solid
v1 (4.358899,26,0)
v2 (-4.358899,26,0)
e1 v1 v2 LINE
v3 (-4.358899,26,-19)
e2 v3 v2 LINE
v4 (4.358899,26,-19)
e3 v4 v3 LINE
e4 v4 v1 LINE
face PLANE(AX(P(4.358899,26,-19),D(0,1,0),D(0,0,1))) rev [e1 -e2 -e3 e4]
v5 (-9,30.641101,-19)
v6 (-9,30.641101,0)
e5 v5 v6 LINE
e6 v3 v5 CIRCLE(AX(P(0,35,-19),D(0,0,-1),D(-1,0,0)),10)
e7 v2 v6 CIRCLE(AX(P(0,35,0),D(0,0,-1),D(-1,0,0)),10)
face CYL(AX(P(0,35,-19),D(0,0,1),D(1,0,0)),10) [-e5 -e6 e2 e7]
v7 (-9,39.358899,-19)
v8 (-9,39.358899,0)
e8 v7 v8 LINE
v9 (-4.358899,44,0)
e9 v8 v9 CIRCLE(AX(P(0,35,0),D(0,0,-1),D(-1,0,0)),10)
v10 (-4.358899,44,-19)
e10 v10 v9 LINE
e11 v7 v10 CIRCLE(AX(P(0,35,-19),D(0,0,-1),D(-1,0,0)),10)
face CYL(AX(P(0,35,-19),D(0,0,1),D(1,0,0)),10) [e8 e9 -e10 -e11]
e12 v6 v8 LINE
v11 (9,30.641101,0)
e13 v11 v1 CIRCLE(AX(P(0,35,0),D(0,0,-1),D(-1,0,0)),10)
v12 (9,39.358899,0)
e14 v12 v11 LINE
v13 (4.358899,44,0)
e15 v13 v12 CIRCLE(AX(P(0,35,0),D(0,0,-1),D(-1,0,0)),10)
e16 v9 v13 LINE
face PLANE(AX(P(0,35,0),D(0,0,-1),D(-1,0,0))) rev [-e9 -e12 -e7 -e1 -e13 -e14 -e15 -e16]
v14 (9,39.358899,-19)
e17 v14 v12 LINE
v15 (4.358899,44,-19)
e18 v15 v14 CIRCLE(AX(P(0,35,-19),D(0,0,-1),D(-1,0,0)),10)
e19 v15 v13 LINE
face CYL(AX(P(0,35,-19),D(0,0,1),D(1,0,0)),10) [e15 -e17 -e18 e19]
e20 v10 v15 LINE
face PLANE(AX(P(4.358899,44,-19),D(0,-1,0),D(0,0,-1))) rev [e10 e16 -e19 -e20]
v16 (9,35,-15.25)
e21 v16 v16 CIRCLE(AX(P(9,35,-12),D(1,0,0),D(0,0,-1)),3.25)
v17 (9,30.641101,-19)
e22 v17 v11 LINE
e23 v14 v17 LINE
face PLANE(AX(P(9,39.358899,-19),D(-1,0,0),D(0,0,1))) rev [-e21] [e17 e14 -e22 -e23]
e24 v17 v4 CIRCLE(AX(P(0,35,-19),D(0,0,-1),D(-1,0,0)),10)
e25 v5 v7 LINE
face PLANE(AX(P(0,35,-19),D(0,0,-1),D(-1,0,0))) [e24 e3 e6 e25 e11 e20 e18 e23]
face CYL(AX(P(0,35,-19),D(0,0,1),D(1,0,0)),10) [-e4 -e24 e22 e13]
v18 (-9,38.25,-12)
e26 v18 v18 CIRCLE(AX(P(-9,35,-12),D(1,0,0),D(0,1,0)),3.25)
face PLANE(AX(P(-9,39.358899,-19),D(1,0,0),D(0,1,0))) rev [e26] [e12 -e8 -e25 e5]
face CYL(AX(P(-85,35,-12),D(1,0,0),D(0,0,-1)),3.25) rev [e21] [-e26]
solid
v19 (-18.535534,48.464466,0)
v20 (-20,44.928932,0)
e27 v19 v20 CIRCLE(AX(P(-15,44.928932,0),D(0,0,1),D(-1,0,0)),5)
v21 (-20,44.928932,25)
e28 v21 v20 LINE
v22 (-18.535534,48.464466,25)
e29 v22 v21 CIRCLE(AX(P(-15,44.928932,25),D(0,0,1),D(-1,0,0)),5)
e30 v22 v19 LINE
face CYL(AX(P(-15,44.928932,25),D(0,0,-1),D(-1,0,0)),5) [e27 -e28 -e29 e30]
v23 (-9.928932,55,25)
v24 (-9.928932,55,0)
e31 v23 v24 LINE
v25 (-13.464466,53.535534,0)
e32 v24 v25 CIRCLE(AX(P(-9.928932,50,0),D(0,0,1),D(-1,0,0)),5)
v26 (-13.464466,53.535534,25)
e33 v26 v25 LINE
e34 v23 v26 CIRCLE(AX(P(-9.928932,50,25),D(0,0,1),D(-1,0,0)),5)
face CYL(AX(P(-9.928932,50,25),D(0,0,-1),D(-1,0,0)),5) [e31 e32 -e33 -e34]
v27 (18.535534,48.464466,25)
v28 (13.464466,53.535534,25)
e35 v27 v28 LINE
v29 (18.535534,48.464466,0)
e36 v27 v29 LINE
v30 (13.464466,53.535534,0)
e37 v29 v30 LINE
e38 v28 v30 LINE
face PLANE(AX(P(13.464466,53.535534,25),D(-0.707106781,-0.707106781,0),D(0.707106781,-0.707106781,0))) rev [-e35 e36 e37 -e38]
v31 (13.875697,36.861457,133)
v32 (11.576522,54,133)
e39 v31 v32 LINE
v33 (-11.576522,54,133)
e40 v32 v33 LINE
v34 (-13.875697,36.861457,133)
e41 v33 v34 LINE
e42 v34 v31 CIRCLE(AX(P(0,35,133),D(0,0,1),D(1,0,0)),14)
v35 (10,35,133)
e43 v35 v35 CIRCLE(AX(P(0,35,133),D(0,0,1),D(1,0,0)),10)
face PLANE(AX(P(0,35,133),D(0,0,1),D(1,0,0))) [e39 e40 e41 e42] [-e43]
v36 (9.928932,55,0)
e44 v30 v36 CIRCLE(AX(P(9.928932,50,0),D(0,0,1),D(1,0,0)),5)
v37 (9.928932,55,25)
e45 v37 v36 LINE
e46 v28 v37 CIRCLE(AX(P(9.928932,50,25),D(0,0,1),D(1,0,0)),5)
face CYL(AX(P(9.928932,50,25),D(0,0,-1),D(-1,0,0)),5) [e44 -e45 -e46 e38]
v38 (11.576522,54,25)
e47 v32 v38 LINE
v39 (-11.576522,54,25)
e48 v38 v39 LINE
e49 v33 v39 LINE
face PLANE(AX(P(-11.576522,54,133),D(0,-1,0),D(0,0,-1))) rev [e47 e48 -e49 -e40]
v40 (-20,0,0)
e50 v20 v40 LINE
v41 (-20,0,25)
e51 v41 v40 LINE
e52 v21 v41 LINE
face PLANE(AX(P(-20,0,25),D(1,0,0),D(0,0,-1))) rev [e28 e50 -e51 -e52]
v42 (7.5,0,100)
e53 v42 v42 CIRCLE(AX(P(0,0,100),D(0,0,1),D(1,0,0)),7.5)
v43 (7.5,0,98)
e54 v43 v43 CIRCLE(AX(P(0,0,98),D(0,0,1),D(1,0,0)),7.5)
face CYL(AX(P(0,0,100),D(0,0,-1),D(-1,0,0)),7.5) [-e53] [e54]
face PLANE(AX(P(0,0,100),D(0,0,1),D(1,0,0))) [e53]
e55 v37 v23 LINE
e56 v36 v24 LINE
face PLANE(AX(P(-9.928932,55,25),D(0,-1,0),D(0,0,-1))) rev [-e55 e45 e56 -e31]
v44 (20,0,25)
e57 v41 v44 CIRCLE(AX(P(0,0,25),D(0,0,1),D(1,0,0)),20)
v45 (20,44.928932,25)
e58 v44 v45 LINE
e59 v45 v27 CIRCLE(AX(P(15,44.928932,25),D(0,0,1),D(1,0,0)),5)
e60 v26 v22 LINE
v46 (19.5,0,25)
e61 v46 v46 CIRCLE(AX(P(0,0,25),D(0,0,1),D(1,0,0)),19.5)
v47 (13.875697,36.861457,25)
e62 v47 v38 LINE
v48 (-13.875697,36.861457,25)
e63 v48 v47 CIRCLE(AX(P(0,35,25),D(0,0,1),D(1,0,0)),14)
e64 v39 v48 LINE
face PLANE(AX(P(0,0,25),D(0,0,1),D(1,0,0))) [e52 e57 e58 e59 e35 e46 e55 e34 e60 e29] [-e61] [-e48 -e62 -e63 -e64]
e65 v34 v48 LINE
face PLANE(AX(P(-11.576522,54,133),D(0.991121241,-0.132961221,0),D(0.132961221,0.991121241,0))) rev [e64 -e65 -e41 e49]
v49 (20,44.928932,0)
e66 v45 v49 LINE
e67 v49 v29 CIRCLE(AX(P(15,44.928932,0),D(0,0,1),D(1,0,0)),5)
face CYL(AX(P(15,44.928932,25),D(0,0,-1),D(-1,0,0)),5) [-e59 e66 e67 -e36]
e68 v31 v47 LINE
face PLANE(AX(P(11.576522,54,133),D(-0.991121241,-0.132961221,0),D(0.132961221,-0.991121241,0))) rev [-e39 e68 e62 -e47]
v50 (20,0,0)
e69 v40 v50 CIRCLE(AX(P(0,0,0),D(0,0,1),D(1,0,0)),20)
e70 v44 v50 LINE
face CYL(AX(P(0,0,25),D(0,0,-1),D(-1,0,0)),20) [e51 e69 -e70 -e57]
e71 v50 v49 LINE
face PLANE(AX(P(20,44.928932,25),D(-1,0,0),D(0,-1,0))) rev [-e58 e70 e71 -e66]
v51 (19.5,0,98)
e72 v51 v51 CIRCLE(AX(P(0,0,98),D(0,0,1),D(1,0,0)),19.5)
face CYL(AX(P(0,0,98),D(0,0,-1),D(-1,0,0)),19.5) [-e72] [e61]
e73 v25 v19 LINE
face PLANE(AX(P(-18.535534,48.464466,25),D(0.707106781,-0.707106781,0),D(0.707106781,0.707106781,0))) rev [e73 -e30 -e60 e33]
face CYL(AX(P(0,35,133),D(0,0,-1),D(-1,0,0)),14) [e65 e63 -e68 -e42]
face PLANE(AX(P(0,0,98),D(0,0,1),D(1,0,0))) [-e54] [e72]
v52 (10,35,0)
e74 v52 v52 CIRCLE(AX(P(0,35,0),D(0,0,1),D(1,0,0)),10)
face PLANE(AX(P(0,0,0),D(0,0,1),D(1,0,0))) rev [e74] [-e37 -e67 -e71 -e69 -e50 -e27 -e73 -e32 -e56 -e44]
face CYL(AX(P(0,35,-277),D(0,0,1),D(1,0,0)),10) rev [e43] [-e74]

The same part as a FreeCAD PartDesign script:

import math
import FreeCAD as App
import Part
import Sketcher

V = App.Vector
Q = App.Units.Quantity

doc = App.newDocument("Part")
body = doc.addObject("PartDesign::Body", "Body")

# Sketch on XY plane
sketch1 = body.newObject("Sketcher::SketchObject", "Sketch")
sketch1.AttachmentSupport = (doc.getObject("XY_Plane"), [""])
sketch1.MapMode = "FlatFace"
sketch1.addGeometry([
    Part.LineSegment(V(-20, 44.9, 0), V(-20, 0, 0)),  # 0
    Part.ArcOfCircle(Part.Circle(V(0, 0, 0), V(0, 0, 1), 20), math.radians(180), math.radians(360)),  # 1
    Part.LineSegment(V(20, 0, 0), V(20, 44.9, 0)),  # 2
    Part.ArcOfCircle(Part.Circle(V(15, 44.9, 0), V(0, 0, 1), 5), math.radians(0), math.radians(45)),  # 3
    Part.LineSegment(V(18.5, 48.5, 0), V(13.5, 53.5, 0)),  # 4
    Part.ArcOfCircle(Part.Circle(V(9.9, 50, 0), V(0, 0, 1), 5), math.radians(45), math.radians(90)),  # 5
    Part.LineSegment(V(9.9, 55, 0), V(-9.9, 55, 0)),  # 6
    Part.ArcOfCircle(Part.Circle(V(-9.9, 50, 0), V(0, 0, 1), 5), math.radians(90), math.radians(135)),  # 7
    Part.LineSegment(V(-13.5, 53.5, 0), V(-18.5, 48.5, 0)),  # 8
    Part.ArcOfCircle(Part.Circle(V(-15, 44.9, 0), V(0, 0, 1), 5), math.radians(135), math.radians(180)),  # 9
], False)
sketch1.addConstraint([
    Sketcher.Constraint("Tangent", 0, 2, 1, 1),
    Sketcher.Constraint("Tangent", 1, 2, 2, 1),
    Sketcher.Constraint("Tangent", 2, 2, 3, 1),
    Sketcher.Constraint("Tangent", 3, 2, 4, 1),
    Sketcher.Constraint("Tangent", 4, 2, 5, 1),
    Sketcher.Constraint("Tangent", 5, 2, 6, 1),
    Sketcher.Constraint("Tangent", 6, 2, 7, 1),
    Sketcher.Constraint("Tangent", 7, 2, 8, 1),
    Sketcher.Constraint("Tangent", 8, 2, 9, 1),
    Sketcher.Constraint("Tangent", 9, 2, 0, 1),
    Sketcher.Constraint("Vertical", 0),
    Sketcher.Constraint("Vertical", 2),
    Sketcher.Constraint("Horizontal", 6),
    Sketcher.Constraint("Coincident", 1, 3, -1, 1),
    Sketcher.Constraint("Equal", 3, 5),
    Sketcher.Constraint("Equal", 5, 7),
    Sketcher.Constraint("Equal", 7, 9),
    Sketcher.Constraint("Symmetric", 4, 2, 7, 2, -2),
    Sketcher.Constraint("Perpendicular", 4, 8),
    Sketcher.Constraint("Radius", 1, Q("20 mm")),
    Sketcher.Constraint("Radius", 3, Q("5 mm")),
    Sketcher.Constraint("DistanceY", -1, 1, 5, 3, Q("50 mm")),
    Sketcher.Constraint("DistanceX", 5, 3, 3, 2, Q("8.606602 mm")),
])
pad1 = body.newObject("PartDesign::Pad", "Pad")
pad1.Profile = sketch1
pad1.Length = 25

# Sketch on XY plane
sketch2 = body.newObject("Sketcher::SketchObject", "Sketch001")
sketch2.AttachmentSupport = (doc.getObject("XY_Plane"), [""])
sketch2.MapMode = "FlatFace"
sketch2.AttachmentOffset = App.Placement(V(0, 0, 25), App.Rotation())
sketch2.addGeometry(Part.Circle(V(0, 0, 0), V(0, 0, 1), 20), False)
sketch2.addConstraint([
    Sketcher.Constraint("Coincident", 0, 3, -1, 1),
    Sketcher.Constraint("Diameter", 0, Q("39 mm")),
])
pad2 = body.newObject("PartDesign::Pad", "Pad001")
pad2.Profile = sketch2
pad2.Length = 73

# Sketch on XY plane
sketch3 = body.newObject("Sketcher::SketchObject", "Sketch002")
sketch3.AttachmentSupport = (doc.getObject("XY_Plane"), [""])
sketch3.MapMode = "FlatFace"
sketch3.AttachmentOffset = App.Placement(V(0, 0, 98), App.Rotation())
sketch3.addGeometry(Part.Circle(V(0, 0, 0), V(0, 0, 1), 8), False)
sketch3.addConstraint([
    Sketcher.Constraint("Coincident", 0, 3, -1, 1),
    Sketcher.Constraint("Diameter", 0, Q("15 mm")),
])
pad3 = body.newObject("PartDesign::Pad", "Pad002")
pad3.Profile = sketch3
pad3.Length = 2

# Sketch on XY plane
sketch4 = body.newObject("Sketcher::SketchObject", "Sketch003")
sketch4.AttachmentSupport = (doc.getObject("XY_Plane"), [""])
sketch4.MapMode = "FlatFace"
sketch4.AttachmentOffset = App.Placement(V(0, 0, 25), App.Rotation())
sketch4.addGeometry([
    Part.LineSegment(V(-12, 54, 0), V(-14, 37, 0)),
    Part.ArcOfCircle(Part.Circle(V(0, 35, 0), V(0, 0, 1), 14), math.radians(172), math.radians(368)),
    Part.LineSegment(V(14, 37, 0), V(12, 54, 0)),
    Part.LineSegment(V(12, 54, 0), V(-12, 54, 0)),
], False)
sketch4.addConstraint([
    Sketcher.Constraint("Tangent", 0, 2, 1, 1),
    Sketcher.Constraint("Tangent", 1, 2, 2, 1),
    Sketcher.Constraint("Coincident", 2, 2, 3, 1),
    Sketcher.Constraint("Coincident", 3, 2, 0, 1),
    Sketcher.Constraint("Horizontal", 3),
    Sketcher.Constraint("Symmetric", 0, 2, 1, 2, -2),
    Sketcher.Constraint("Radius", 1, Q("14 mm")),
    Sketcher.Constraint("DistanceY", -1, 1, 1, 3, Q("35 mm")),
    Sketcher.Constraint("DistanceY", -1, 1, 2, 2, Q("54 mm")),
    Sketcher.Constraint("DistanceX", 3, 2, 3, 1, Q("23.153044 mm")),
])
pad4 = body.newObject("PartDesign::Pad", "Pad003")
pad4.Profile = sketch4
pad4.Length = 108

# Sketch on XY plane
sketch5 = body.newObject("Sketcher::SketchObject", "Sketch004")
sketch5.AttachmentSupport = (doc.getObject("XY_Plane"), [""])
sketch5.MapMode = "FlatFace"
sketch5.AttachmentOffset = App.Placement(V(0, 0, 133), App.Rotation())
sketch5.addGeometry(Part.Circle(V(0, 35, 0), V(0, 0, 1), 10), False)
sketch5.addConstraint([
    Sketcher.Constraint("PointOnObject", 0, 3, -2),
    Sketcher.Constraint("Diameter", 0, Q("20 mm")),
    Sketcher.Constraint("DistanceY", -1, 1, 0, 3, Q("35 mm")),
])
pocket1 = body.newObject("PartDesign::Pocket", "Pocket")
pocket1.Profile = sketch5
pocket1.Length = 410
body2 = doc.addObject("PartDesign::Body", "Body001")

# Sketch on XY plane
sketch6 = body2.newObject("Sketcher::SketchObject", "Sketch005")
sketch6.AttachmentSupport = (doc.getObject("XY_Plane001"), [""])
sketch6.MapMode = "FlatFace"
sketch6.addGeometry([
    Part.LineSegment(V(-4, 44, 0), V(4, 44, 0)),  # 0
    Part.ArcOfCircle(Part.Circle(V(0, 35, 0), V(0, 0, 1), 10), math.radians(26), math.radians(64)),  # 1
    Part.LineSegment(V(9, 39, 0), V(9, 31, 0)),  # 2
    Part.ArcOfCircle(Part.Circle(V(0, 35, 0), V(0, 0, 1), 10), math.radians(-64), math.radians(-26)),  # 3
    Part.LineSegment(V(4, 26, 0), V(-4, 26, 0)),  # 4
    Part.ArcOfCircle(Part.Circle(V(0, 35, 0), V(0, 0, 1), 10), math.radians(-154), math.radians(-116)),  # 5
    Part.LineSegment(V(-9, 31, 0), V(-9, 39, 0)),  # 6
    Part.ArcOfCircle(Part.Circle(V(0, 35, 0), V(0, 0, 1), 10), math.radians(116), math.radians(154)),  # 7
], False)
sketch6.addConstraint([
    Sketcher.Constraint("Coincident", 0, 2, 1, 2),
    Sketcher.Constraint("Coincident", 1, 1, 2, 1),
    Sketcher.Constraint("Coincident", 2, 2, 3, 2),
    Sketcher.Constraint("Coincident", 3, 1, 4, 1),
    Sketcher.Constraint("Coincident", 4, 2, 5, 2),
    Sketcher.Constraint("Coincident", 5, 1, 6, 1),
    Sketcher.Constraint("Coincident", 6, 2, 7, 2),
    Sketcher.Constraint("Coincident", 7, 1, 0, 1),
    Sketcher.Constraint("Horizontal", 0),
    Sketcher.Constraint("Vertical", 2),
    Sketcher.Constraint("Horizontal", 4),
    Sketcher.Constraint("Vertical", 6),
    Sketcher.Constraint("Coincident", 3, 3, 1, 3),
    Sketcher.Constraint("Coincident", 5, 3, 1, 3),
    Sketcher.Constraint("Coincident", 7, 3, 1, 3),
    Sketcher.Constraint("Equal", 1, 3),
    Sketcher.Constraint("Equal", 3, 5),
    Sketcher.Constraint("Equal", 5, 7),
    Sketcher.Constraint("Symmetric", 2, 2, 5, 1, -2),
    Sketcher.Constraint("Vertical", 0, 2, 3, 1),
    Sketcher.Constraint("Equal", 4, 2),
    Sketcher.Constraint("Radius", 1, Q("10 mm")),
    Sketcher.Constraint("DistanceY", -1, 1, 1, 3, Q("35 mm")),
    Sketcher.Constraint("DistanceY", -1, 1, 0, 2, Q("44 mm")),
])
pad5 = body2.newObject("PartDesign::Pad", "Pad004")
pad5.Profile = sketch6
pad5.Length = 19
pad5.Reversed = True

# Sketch on YZ plane
sketch7 = body2.newObject("Sketcher::SketchObject", "Sketch006")
sketch7.AttachmentSupport = (doc.getObject("YZ_Plane001"), [""])
sketch7.MapMode = "FlatFace"
sketch7.AttachmentOffset = App.Placement(V(0, 0, 9), App.Rotation())
sketch7.addGeometry(Part.Circle(V(35, -12, 0), V(0, 0, 1), 3.2), False)
sketch7.addConstraint([
    Sketcher.Constraint("Diameter", 0, Q("6.5 mm")),
    Sketcher.Constraint("DistanceX", -1, 1, 0, 3, Q("35 mm")),
    Sketcher.Constraint("DistanceY", 0, 3, -1, 1, Q("12 mm")),
])
pocket2 = body2.newObject("PartDesign::Pocket", "Pocket001")
pocket2.Profile = sketch7
pocket2.Length = 94

doc.recompute()
